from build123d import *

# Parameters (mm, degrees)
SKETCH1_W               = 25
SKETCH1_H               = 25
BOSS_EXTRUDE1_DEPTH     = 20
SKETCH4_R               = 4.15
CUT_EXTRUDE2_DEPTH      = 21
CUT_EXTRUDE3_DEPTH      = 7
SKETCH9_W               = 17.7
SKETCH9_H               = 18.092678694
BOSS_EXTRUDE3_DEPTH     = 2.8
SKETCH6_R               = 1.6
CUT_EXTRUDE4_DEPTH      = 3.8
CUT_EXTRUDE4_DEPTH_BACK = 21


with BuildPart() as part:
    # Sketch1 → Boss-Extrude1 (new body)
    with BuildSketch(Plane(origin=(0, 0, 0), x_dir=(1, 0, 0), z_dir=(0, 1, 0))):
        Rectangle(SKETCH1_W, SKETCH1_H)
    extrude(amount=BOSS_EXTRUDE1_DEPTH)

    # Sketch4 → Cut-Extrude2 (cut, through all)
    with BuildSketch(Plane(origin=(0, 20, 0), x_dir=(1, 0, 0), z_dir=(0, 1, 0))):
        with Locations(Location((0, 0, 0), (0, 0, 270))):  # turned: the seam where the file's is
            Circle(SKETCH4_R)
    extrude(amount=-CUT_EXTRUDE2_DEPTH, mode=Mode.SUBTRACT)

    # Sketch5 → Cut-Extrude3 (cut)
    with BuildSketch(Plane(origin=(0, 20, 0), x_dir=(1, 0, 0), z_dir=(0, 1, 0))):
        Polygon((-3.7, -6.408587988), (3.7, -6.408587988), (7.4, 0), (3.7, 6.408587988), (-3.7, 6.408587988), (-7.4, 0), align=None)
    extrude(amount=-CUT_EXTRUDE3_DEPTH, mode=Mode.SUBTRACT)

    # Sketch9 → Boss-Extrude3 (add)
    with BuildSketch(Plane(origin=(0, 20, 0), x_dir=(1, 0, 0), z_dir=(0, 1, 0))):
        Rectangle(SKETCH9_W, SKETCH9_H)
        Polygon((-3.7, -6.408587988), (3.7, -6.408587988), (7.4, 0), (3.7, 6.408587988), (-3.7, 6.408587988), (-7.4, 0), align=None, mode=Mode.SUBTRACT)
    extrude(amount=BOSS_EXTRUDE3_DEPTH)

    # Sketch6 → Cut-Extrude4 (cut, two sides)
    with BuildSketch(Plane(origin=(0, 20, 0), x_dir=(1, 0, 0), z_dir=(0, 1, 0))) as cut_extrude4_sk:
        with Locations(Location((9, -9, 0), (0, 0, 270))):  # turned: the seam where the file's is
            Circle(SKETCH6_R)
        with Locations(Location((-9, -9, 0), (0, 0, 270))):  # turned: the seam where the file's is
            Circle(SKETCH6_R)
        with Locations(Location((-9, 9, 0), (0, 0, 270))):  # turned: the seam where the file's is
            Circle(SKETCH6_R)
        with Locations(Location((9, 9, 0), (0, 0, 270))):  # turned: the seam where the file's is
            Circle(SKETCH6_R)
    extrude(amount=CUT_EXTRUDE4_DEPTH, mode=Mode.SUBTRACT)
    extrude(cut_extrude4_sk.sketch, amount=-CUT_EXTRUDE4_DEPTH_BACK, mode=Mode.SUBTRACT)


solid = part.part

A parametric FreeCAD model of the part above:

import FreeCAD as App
import Part
import Sketcher
Q = App.Units.Quantity


def add_polygon(sketch, points):
    """Adds a closed chain of lines whose ends are joined by coincident constraints."""
    first, n = sketch.GeometryCount, len(points)
    for a, b in zip(points, points[1:] + points[:1]):
        sketch.addGeometry(Part.LineSegment(App.Vector(*a, 0), App.Vector(*b, 0)), False)
    for i in range(n):
        sketch.addConstraint(Sketcher.Constraint("Coincident", first + i, 2, first + (i + 1) % n, 1))

doc = App.newDocument("Part")
body = doc.addObject("PartDesign::Body", "Body")

# Sketch on XZ plane
sketch1 = doc.addObject("Sketcher::SketchObject", "Sketch")
body.addObject(sketch1)
sketch1.AttachmentSupport = (doc.XZ_Plane, [""])
sketch1.MapMode = "FlatFace"
add_polygon(sketch1, [(-12, -12), (-12, 12), (12, 12), (12, -12)])  # lines 0-3
sketch1.addConstraint([
    Sketcher.Constraint("Vertical", 0),
    Sketcher.Constraint("Horizontal", 1),
    Sketcher.Constraint("Vertical", 2),
    Sketcher.Constraint("Horizontal", 3),
    Sketcher.Constraint("Symmetric", 0, 2, 2, 2, -1, 1),
    Sketcher.Constraint("Equal", 3, 0),
    Sketcher.Constraint("DistanceX", 1, 1, 1, 2, 25.0),
])
pad1 = doc.addObject("PartDesign::Pad", "Pad")
body.addObject(pad1)
pad1.Profile = sketch1
pad1.Length = 20
pad1.Reversed = True

# Sketch on XZ plane
sketch2 = doc.addObject("Sketcher::SketchObject", "Sketch001")
body.addObject(sketch2)
sketch2.AttachmentSupport = (doc.XZ_Plane, [""])
sketch2.MapMode = "FlatFace"
sketch2.AttachmentOffset = App.Placement(App.Vector(0, 0, -20), App.Rotation())
sketch2.addGeometry(Part.Circle(App.Vector(0, 0, 0), App.Vector(0, 0, 1), 4.2), False)
sketch2.addConstraint([
    Sketcher.Constraint("Coincident", 0, 3, -1, 1),
    Sketcher.Constraint("Diameter", 0, 8.3),
])
pocket1 = doc.addObject("PartDesign::Pocket", "Pocket")
body.addObject(pocket1)
pocket1.Profile = sketch2
pocket1.Type = "ThroughAll"
pocket1.Reversed = True

# Sketch on XZ plane
sketch3 = doc.addObject("Sketcher::SketchObject", "Sketch002")
body.addObject(sketch3)
sketch3.AttachmentSupport = (doc.XZ_Plane, [""])
sketch3.MapMode = "FlatFace"
sketch3.AttachmentOffset = App.Placement(App.Vector(0, 0, -20), App.Rotation())
add_polygon(sketch3, [(-4, 6), (4, 6), (7, 0), (4, -6), (-4, -6), (-7, 0)])  # lines 0-5
sketch3.addConstraint([
    Sketcher.Constraint("Horizontal", 0),
    Sketcher.Constraint("Horizontal", 3),
    Sketcher.Constraint("Symmetric", 0, 2, 3, 2, -1, 1),
    Sketcher.Constraint("Symmetric", 1, 2, 4, 2, -1, 1),
    Sketcher.Constraint("PointOnObject", 1, 2, -1),
    Sketcher.Constraint("Parallel", 2, 5),
    Sketcher.Constraint("Vertical", 0, 2, 2, 2),
    Sketcher.Constraint("Angle", 1, Q("-60 deg")),
    Sketcher.Constraint("DistanceX", 0, 1, 0, 2, 7.4),
    Sketcher.Constraint("Distance", 1, 7.4),
])
pocket2 = doc.addObject("PartDesign::Pocket", "Pocket001")
body.addObject(pocket2)
pocket2.Profile = sketch3
pocket2.Length = 7
pocket2.Reversed = True

# Sketch on XZ plane
sketch4 = doc.addObject("Sketcher::SketchObject", "Sketch003")
body.addObject(sketch4)
sketch4.AttachmentSupport = (doc.XZ_Plane, [""])
sketch4.MapMode = "FlatFace"
sketch4.AttachmentOffset = App.Placement(App.Vector(0, 0, -20), App.Rotation())
add_polygon(sketch4, [(-9, -9), (-9, 9), (9, 9), (9, -9)])  # lines 0-3
add_polygon(sketch4, [(4, 6), (-4, 6), (-7, 0), (-4, -6), (4, -6), (7, 0)])  # lines 4-9
sketch4.addConstraint([
    Sketcher.Constraint("Vertical", 0),
    Sketcher.Constraint("Horizontal", 1),
    Sketcher.Constraint("Vertical", 2),
    Sketcher.Constraint("Horizontal", 3),
    Sketcher.Constraint("Horizontal", 4),
    Sketcher.Constraint("Horizontal", 7),
    Sketcher.Constraint("Symmetric", 0, 2, 2, 2, -1, 1),
    Sketcher.Constraint("Symmetric", 4, 2, 7, 2, -1, 1),
    Sketcher.Constraint("Symmetric", 5, 2, 8, 2, -1, 1),
    Sketcher.Constraint("PointOnObject", 5, 2, -1),
    Sketcher.Constraint("Parallel", 6, 9),
    Sketcher.Constraint("Vertical", 4, 2, 6, 2),
    Sketcher.Constraint("Angle", 5, Q("-120 deg")),
    Sketcher.Constraint("DistanceX", 1, 1, 1, 2, 17.7),
    Sketcher.Constraint("DistanceX", 4, 2, 4, 1, 7.4),
    Sketcher.Constraint("Distance", 5, 7.4),
    Sketcher.Constraint("DistanceY", 0, 1, 0, 2, 18.092679),
])
pad2 = doc.addObject("PartDesign::Pad", "Pad001")
body.addObject(pad2)
pad2.Profile = sketch4
pad2.Length = 2.8
pad2.Reversed = True

# Sketch on XZ plane
sketch5 = doc.addObject("Sketcher::SketchObject", "Sketch004")
body.addObject(sketch5)
sketch5.AttachmentSupport = (doc.XZ_Plane, [""])
sketch5.MapMode = "FlatFace"
sketch5.AttachmentOffset = App.Placement(App.Vector(0, 0, -20), App.Rotation())
sketch5.addGeometry([
    Part.Circle(App.Vector(9, 9, 0), App.Vector(0, 0, 1), 1.6),
    Part.Circle(App.Vector(-9, 9, 0), App.Vector(0, 0, 1), 1.6),
    Part.Circle(App.Vector(-9, -9, 0), App.Vector(0, 0, 1), 1.6),
    Part.Circle(App.Vector(9, -9, 0), App.Vector(0, 0, 1), 1.6),
], False)
sketch5.addConstraint([
    Sketcher.Constraint("Equal", 0, 1),
    Sketcher.Constraint("Equal", 1, 2),
    Sketcher.Constraint("Equal", 2, 3),
    Sketcher.Constraint("Symmetric", 0, 3, 2, 3, -1, 1),
    Sketcher.Constraint("Symmetric", 1, 3, 3, 3, -1, 1),
    Sketcher.Constraint("Symmetric", 0, 3, 1, 3, -2),
    Sketcher.Constraint("Diameter", 0, 3.2),
    Sketcher.Constraint("DistanceX", -1, 1, 0, 3, 9.0),
    Sketcher.Constraint("DistanceY", -1, 1, 0, 3, 9.0),
])
pocket3 = doc.addObject("PartDesign::Pocket", "Pocket002")
body.addObject(pocket3)
pocket3.Profile = sketch5
pocket3.Type = "ThroughAll"
pocket3.Midplane = True

doc.recompute()
